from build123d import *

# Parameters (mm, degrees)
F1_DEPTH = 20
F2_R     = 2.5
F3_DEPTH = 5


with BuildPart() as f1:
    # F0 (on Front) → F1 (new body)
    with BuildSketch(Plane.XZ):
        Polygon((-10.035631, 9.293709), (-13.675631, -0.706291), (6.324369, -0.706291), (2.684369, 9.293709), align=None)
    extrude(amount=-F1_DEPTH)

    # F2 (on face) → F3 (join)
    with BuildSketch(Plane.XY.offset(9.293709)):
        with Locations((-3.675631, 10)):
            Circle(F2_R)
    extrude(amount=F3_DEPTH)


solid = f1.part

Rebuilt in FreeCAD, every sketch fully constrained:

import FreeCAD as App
import Part
import Sketcher

V = App.Vector
Q = App.Units.Quantity

doc = App.newDocument("Part")
params = doc.addObject("Spreadsheet::Sheet", "Params")
for row, (alias, value) in enumerate([
    ("sketch1_width", "20 mm"),
    ("sketch1_width2", "12.72 mm"),
    ("pad1_length", "20 mm"),
    ("sketch2_diameter", "5 mm"),
    ("pad2_length", "5 mm"),
], start=1):
    params.set(f"A{row}", alias)
    params.set(f"B{row}", "=" + value)
    params.setAlias(f"B{row}", alias)

body = doc.addObject("PartDesign::Body", "Body")

sketch1 = body.newObject("Sketcher::SketchObject", "Sketch")
sketch1.AttachmentSupport = (doc.getObject("XZ_Plane"), [""])
sketch1.MapMode = "FlatFace"
sketch1.addGeometry([
    Part.LineSegment(V(-10, 9, 0), V(-14, -1, 0)),
    Part.LineSegment(V(-14, -1, 0), V(6, -1, 0)),
    Part.LineSegment(V(6, -1, 0), V(3, 9, 0)),
    Part.LineSegment(V(3, 9, 0), V(-10, 9, 0)),
], False)
sketch1.addConstraint([
    Sketcher.Constraint("Coincident", 0, 2, 1, 1),
    Sketcher.Constraint("Coincident", 1, 2, 2, 1),
    Sketcher.Constraint("Coincident", 2, 2, 3, 1),
    Sketcher.Constraint("Coincident", 3, 2, 0, 1),
    Sketcher.Constraint("Horizontal", 1),
    Sketcher.Constraint("Horizontal", 3),
    Sketcher.Constraint("Equal", 0, 2),
    Sketcher.Constraint("DistanceX", 1, 1, 1, 2, Q("20 mm")),
    Sketcher.Constraint("DistanceY", 1, 2, 2, 2, Q("10 mm")),
    Sketcher.Constraint("DistanceX", 3, 2, 3, 1, Q("12.72 mm")),
    Sketcher.Constraint("DistanceX", 0, 2, -1, 1, Q("13.675631 mm")),
    Sketcher.Constraint("DistanceY", 0, 2, -1, 1, Q("0.706291 mm")),
])
sketch1.setExpression("Constraints[7]", "Params.sketch1_width")
sketch1.setExpression("Constraints[9]", "Params.sketch1_width2")
pad1 = body.newObject("PartDesign::Pad", "Pad")
pad1.Profile = sketch1
pad1.setExpression("Length", "Params.pad1_length")
pad1.Reversed = True

sketch2 = body.newObject("Sketcher::SketchObject", "Sketch001")
sketch2.AttachmentSupport = (doc.getObject("XY_Plane"), [""])
sketch2.MapMode = "FlatFace"
sketch2.AttachmentOffset = App.Placement(V(0, 0, 9.293709), App.Rotation())
sketch2.addGeometry(Part.Circle(V(-3.7, 10, 0), V(0, 0, 1), 2.5), False)
sketch2.addConstraint([
    Sketcher.Constraint("Diameter", 0, Q("5 mm")),
    Sketcher.Constraint("DistanceY", -1, 1, 0, 3, Q("10 mm")),
    Sketcher.Constraint("DistanceX", 0, 3, -1, 1, Q("3.675631 mm")),
])
sketch2.setExpression("Constraints[0]", "Params.sketch2_diameter")
pad2 = body.newObject("PartDesign::Pad", "Pad001")
pad2.Profile = sketch2
pad2.setExpression("Length", "Params.pad2_length")

doc.recompute()
